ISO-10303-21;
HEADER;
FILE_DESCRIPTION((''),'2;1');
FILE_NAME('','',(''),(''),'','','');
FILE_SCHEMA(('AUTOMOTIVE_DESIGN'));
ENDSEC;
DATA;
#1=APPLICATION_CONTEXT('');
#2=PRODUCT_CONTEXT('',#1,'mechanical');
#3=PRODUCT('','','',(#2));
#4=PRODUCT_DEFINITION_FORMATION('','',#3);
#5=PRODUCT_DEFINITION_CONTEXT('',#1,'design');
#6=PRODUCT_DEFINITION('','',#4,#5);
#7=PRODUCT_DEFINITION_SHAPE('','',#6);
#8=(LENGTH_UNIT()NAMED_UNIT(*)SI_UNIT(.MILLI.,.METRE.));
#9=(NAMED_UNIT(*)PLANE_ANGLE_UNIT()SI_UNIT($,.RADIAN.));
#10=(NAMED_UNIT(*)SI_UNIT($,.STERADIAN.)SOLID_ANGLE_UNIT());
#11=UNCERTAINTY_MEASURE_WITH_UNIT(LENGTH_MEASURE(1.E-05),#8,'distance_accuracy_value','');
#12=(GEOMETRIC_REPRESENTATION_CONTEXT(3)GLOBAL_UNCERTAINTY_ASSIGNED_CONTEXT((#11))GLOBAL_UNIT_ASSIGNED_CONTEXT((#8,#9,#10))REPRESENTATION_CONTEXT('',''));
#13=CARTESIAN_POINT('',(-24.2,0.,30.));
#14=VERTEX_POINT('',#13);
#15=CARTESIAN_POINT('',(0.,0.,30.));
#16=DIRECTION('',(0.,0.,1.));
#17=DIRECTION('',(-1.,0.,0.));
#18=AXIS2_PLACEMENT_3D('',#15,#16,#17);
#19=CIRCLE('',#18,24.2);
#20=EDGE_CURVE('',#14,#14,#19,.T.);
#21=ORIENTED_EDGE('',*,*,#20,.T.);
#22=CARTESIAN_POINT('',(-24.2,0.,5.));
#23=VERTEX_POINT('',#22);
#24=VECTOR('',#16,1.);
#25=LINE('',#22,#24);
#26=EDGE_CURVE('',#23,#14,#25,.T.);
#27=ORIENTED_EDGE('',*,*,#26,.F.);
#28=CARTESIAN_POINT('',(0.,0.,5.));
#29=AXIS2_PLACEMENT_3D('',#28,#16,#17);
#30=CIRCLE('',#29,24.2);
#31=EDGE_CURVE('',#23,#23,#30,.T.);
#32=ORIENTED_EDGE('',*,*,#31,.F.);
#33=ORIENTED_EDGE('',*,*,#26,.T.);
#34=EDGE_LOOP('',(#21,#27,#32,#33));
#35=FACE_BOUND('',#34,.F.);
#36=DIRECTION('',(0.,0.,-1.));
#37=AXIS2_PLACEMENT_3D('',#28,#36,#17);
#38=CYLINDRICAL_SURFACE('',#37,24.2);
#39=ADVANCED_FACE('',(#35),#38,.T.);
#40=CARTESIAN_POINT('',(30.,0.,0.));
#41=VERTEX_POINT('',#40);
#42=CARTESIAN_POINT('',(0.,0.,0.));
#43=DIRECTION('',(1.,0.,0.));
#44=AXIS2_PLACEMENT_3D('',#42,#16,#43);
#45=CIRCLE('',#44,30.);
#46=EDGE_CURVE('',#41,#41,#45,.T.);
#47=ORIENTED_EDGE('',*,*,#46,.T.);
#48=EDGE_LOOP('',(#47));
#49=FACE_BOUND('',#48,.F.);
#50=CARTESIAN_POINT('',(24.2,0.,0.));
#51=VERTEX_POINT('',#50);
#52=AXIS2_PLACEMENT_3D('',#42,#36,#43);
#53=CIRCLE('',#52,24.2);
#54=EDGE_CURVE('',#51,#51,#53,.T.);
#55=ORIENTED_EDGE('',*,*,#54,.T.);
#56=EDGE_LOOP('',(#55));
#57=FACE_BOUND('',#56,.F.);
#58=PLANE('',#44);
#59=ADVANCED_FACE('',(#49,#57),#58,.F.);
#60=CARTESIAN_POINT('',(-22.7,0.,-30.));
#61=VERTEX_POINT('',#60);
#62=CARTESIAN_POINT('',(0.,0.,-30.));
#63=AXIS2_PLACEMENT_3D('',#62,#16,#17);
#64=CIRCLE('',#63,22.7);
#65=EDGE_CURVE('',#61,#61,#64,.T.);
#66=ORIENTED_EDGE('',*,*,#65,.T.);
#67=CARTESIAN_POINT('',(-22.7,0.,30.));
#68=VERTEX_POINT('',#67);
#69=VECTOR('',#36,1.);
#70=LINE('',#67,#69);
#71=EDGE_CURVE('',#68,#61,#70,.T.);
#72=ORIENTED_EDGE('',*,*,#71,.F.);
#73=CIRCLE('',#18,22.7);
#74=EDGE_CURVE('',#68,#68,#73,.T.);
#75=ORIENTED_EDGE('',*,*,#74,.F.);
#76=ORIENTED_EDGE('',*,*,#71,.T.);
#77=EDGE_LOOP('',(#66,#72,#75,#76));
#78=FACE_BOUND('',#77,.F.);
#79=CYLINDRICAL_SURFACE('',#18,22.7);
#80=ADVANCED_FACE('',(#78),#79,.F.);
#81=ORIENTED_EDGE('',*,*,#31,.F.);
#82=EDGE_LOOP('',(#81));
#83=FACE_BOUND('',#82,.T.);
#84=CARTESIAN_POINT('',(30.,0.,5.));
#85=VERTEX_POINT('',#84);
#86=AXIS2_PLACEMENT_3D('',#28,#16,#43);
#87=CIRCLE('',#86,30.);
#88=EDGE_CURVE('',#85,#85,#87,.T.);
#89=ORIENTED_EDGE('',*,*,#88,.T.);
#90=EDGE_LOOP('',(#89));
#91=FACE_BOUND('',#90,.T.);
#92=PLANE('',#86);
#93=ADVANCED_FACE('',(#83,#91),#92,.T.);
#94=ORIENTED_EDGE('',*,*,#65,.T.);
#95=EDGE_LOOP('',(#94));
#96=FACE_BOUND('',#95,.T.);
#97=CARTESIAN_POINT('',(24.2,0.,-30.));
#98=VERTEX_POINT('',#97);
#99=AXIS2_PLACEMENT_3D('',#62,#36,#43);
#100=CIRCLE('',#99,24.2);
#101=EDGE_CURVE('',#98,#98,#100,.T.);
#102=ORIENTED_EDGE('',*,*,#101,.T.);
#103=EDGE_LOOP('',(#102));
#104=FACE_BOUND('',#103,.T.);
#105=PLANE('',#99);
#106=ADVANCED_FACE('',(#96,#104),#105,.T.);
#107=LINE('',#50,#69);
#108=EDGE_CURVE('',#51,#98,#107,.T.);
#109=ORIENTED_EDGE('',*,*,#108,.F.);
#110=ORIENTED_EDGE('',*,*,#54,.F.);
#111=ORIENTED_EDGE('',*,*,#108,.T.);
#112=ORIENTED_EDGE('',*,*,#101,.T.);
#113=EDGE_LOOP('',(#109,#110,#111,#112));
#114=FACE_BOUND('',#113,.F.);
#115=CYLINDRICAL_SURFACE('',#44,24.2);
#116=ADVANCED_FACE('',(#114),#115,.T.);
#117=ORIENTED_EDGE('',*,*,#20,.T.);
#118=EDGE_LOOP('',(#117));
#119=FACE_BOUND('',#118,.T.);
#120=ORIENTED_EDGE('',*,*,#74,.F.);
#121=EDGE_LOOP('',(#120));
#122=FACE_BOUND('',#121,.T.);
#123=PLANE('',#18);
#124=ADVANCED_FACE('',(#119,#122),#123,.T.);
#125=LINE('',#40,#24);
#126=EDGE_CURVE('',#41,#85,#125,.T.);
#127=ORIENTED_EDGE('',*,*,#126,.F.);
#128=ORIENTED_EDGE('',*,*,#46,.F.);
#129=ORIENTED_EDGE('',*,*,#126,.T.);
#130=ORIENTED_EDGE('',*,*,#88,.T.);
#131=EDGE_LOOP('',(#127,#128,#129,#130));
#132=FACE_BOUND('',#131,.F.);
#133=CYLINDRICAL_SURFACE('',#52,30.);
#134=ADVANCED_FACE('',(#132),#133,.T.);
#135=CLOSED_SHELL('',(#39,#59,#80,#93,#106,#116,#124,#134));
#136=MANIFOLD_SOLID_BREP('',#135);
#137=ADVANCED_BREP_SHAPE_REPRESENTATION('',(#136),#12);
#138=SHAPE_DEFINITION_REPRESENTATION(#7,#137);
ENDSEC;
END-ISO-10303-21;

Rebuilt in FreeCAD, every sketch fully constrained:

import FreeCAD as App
import Part
import Sketcher
from FreeCAD import Vector
Q = App.Units.Quantity

doc = App.newDocument("Part")
body = doc.addObject("PartDesign::Body", "Body")

sketch1 = body.newObject("Sketcher::SketchObject", "Sketch")
sketch1.AttachmentSupport = (doc.getObject("XY_Plane"), [""])
sketch1.MapMode = "FlatFace"
sketch1.addGeometry(Part.Circle(Vector(0, 0, 0), Vector(0, 0, 1), 30), False)
sketch1.addConstraint([
    Sketcher.Constraint("Coincident", 0, 3, -1, 1),
    Sketcher.Constraint("Diameter", 0, Q("60 mm")),
])
pad1 = body.newObject("PartDesign::Pad", "Pad")
pad1.Profile = sketch1
pad1.Length = 5

sketch2 = body.newObject("Sketcher::SketchObject", "Sketch001")
sketch2.AttachmentSupport = (doc.getObject("XY_Plane"), [""])
sketch2.MapMode = "FlatFace"
sketch2.AttachmentOffset = App.Placement(Vector(0, 0, 5), App.Rotation())
sketch2.addGeometry(Part.Circle(Vector(0, 0, 0), Vector(0, 0, 1), 24.2), False)
sketch2.addConstraint([
    Sketcher.Constraint("Coincident", 0, 3, -1, 1),
    Sketcher.Constraint("Diameter", 0, Q("48.4 mm")),
])
pad2 = body.newObject("PartDesign::Pad", "Pad001")
pad2.Profile = sketch2
pad2.Length = 25

sketch3 = body.newObject("Sketcher::SketchObject", "Sketch002")
sketch3.AttachmentSupport = (doc.getObject("XY_Plane"), [""])
sketch3.MapMode = "FlatFace"
sketch3.addGeometry(Part.Circle(Vector(0, 0, 0), Vector(0, 0, 1), 24.2), False)
sketch3.addConstraint([
    Sketcher.Constraint("Coincident", 0, 3, -1, 1),
    Sketcher.Constraint("Diameter", 0, Q("48.4 mm")),
])
pad3 = body.newObject("PartDesign::Pad", "Pad002")
pad3.Profile = sketch3
pad3.Length = 30
pad3.Reversed = True

sketch4 = body.newObject("Sketcher::SketchObject", "Sketch003")
sketch4.AttachmentSupport = (doc.getObject("XY_Plane"), [""])
sketch4.MapMode = "FlatFace"
sketch4.AttachmentOffset = App.Placement(Vector(0, 0, 30), App.Rotation())
sketch4.addGeometry(Part.Circle(Vector(0, 0, 0), Vector(0, 0, 1), 22.7), False)
sketch4.addConstraint([
    Sketcher.Constraint("Coincident", 0, 3, -1, 1),
    Sketcher.Constraint("Diameter", 0, Q("45.4 mm")),
])
pocket1 = body.newObject("PartDesign::Pocket", "Pocket")
pocket1.Profile = sketch4
pocket1.Length = 60

doc.recompute()
